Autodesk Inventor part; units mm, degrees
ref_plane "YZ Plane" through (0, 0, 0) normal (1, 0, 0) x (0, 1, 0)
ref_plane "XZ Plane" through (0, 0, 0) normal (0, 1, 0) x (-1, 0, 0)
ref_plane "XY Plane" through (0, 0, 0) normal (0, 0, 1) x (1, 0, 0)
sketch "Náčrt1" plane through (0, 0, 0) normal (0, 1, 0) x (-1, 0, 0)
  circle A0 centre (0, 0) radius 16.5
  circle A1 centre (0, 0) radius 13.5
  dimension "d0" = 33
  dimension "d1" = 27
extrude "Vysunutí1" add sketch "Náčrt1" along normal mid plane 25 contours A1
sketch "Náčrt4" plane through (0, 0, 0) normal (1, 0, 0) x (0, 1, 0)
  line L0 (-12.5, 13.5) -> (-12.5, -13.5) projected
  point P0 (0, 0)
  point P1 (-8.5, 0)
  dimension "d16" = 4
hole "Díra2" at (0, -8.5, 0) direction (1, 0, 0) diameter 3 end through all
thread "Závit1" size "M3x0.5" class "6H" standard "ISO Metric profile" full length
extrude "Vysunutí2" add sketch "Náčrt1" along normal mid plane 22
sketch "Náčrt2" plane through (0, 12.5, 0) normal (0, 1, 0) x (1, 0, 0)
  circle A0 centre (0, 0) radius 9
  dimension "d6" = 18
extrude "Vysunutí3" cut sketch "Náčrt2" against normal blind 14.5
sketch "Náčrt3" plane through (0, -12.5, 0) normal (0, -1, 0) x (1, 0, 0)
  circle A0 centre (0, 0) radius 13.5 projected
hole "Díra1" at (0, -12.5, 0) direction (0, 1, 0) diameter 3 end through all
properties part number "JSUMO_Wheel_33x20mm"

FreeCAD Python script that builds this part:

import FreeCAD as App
import Part
import Sketcher

V = App.Vector
Q = App.Units.Quantity

doc = App.newDocument("Part")
body = doc.addObject("PartDesign::Body", "Body")

sketch1 = body.newObject("Sketcher::SketchObject", "Sketch")
sketch1.AttachmentSupport = (doc.getObject("XZ_Plane"), [""])
sketch1.MapMode = "FlatFace"
sketch1.addGeometry(Part.Circle(V(0, 0, 0), V(0, 0, 1), 14), False)
sketch1.addConstraint(Sketcher.Constraint("Coincident", 0, 3, -1, 1))
sketch1.addConstraint(Sketcher.Constraint("Diameter", 0, Q("27 mm")))
pad1 = body.newObject("PartDesign::Pad", "Pad")
pad1.Profile = sketch1
pad1.Length = 25
pad1.Midplane = True

sketch2 = body.newObject("Sketcher::SketchObject", "Sketch001")
sketch2.AttachmentSupport = (doc.getObject("YZ_Plane"), [""])
sketch2.MapMode = "FlatFace"
sketch2.addGeometry(Part.Circle(V(-8.5, 0, 0), V(0, 0, 1), 1.5), False)
sketch2.addConstraint(Sketcher.Constraint("PointOnObject", 0, 3, -1))
sketch2.addConstraint(Sketcher.Constraint("Diameter", 0, Q("3 mm")))
sketch2.addConstraint(Sketcher.Constraint("DistanceX", 0, 3, -1, 1, Q("8.5 mm")))
doc.recompute()
hole = body.newObject("PartDesign::Hole", "Hole")
hole.Profile = sketch2
hole.ThreadType = "None"
hole.Diameter = 3
hole.DepthType = "ThroughAll"
hole.Reversed = True

sketch3 = body.newObject("Sketcher::SketchObject", "Sketch002")
sketch3.AttachmentSupport = (doc.getObject("XZ_Plane"), [""])
sketch3.MapMode = "FlatFace"
sketch3.addGeometry(Part.Circle(V(0, 0, 0), V(0, 0, 1), 16), False)
sketch3.addGeometry(Part.Circle(V(0, 0, 0), V(0, 0, 1), 14), False)
sketch3.addConstraint(Sketcher.Constraint("Coincident", 0, 3, -1, 1))
sketch3.addConstraint(Sketcher.Constraint("Coincident", 1, 3, -1, 1))
sketch3.addConstraint(Sketcher.Constraint("Diameter", 0, Q("33 mm")))
sketch3.addConstraint(Sketcher.Constraint("Diameter", 1, Q("27 mm")))
pad2 = body.newObject("PartDesign::Pad", "Pad001")
pad2.Profile = sketch3
pad2.Length = 22
pad2.Midplane = True

sketch4 = body.newObject("Sketcher::SketchObject", "Sketch003")
sketch4.AttachmentSupport = (doc.getObject("XZ_Plane"), [""])
sketch4.MapMode = "FlatFace"
sketch4.AttachmentOffset = App.Placement(V(0, 0, -12.5), App.Rotation())
sketch4.addGeometry(Part.Circle(V(0, 0, 0), V(0, 0, 1), 9), False)
sketch4.addConstraint(Sketcher.Constraint("Coincident", 0, 3, -1, 1))
sketch4.addConstraint(Sketcher.Constraint("Diameter", 0, Q("18 mm")))
pocket1 = body.newObject("PartDesign::Pocket", "Pocket")
pocket1.Profile = sketch4
pocket1.Length = 14.5
pocket1.Reversed = True

sketch5 = body.newObject("Sketcher::SketchObject", "Sketch004")
sketch5.AttachmentSupport = (doc.getObject("XZ_Plane"), [""])
sketch5.MapMode = "FlatFace"
sketch5.AttachmentOffset = App.Placement(V(0, 0, 12.5), App.Rotation())
sketch5.addGeometry(Part.Circle(V(0, 0, 0), V(0, 0, 1), 1.5), False)
sketch5.addConstraint(Sketcher.Constraint("Coincident", 0, 3, -1, 1))
sketch5.addConstraint(Sketcher.Constraint("Diameter", 0, Q("3 mm")))
doc.recompute()
hole2 = body.newObject("PartDesign::Hole", "Hole001")
hole2.Profile = sketch5
hole2.ThreadType = "None"
hole2.Diameter = 3
hole2.DepthType = "ThroughAll"

doc.recompute()
